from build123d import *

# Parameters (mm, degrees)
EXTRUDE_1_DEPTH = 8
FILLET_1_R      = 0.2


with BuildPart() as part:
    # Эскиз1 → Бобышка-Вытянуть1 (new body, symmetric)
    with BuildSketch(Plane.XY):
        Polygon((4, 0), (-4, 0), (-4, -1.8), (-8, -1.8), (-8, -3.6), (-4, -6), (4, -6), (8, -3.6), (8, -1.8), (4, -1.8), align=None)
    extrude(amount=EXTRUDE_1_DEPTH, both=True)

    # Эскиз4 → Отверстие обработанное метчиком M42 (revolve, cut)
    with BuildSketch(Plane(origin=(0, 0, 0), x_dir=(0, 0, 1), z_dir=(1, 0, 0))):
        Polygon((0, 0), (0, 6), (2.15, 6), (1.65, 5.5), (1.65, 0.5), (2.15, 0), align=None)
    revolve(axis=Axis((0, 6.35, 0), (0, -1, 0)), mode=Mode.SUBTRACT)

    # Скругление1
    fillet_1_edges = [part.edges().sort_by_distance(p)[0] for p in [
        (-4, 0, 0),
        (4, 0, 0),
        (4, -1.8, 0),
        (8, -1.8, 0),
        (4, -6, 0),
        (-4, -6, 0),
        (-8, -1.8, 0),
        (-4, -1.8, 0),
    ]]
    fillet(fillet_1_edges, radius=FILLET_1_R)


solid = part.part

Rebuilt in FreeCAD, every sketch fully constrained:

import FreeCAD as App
import Part
import Sketcher
Q = App.Units.Quantity


def edges_at(feature, points):
    """Names of the edges that pass closest to the given points."""
    edges = feature.Shape.Edges
    near = lambda p: min(range(len(edges)), key=lambda i: edges[i].distToShape(Part.Vertex(*p))[0])
    return sorted({f"Edge{near(p) + 1}" for p in points})


def add_polygon(sketch, points):
    """Adds a closed chain of lines whose ends are joined by coincident constraints."""
    first, n = sketch.GeometryCount, len(points)
    for a, b in zip(points, points[1:] + points[:1]):
        sketch.addGeometry(Part.LineSegment(App.Vector(*a, 0), App.Vector(*b, 0)), False)
    for i in range(n):
        sketch.addConstraint(Sketcher.Constraint("Coincident", first + i, 2, first + (i + 1) % n, 1))

doc = App.newDocument("Part")
body = doc.addObject("PartDesign::Body", "Body")

# Sketch on XY plane
sketch1 = doc.addObject("Sketcher::SketchObject", "Sketch")
body.addObject(sketch1)
sketch1.AttachmentSupport = (doc.XY_Plane, [""])
sketch1.MapMode = "FlatFace"
add_polygon(sketch1, [(4, 0), (-4, 0), (-4, -1.8), (-8, -1.8), (-8, -3.6), (-4, -6), (4, -6), (8, -3.6), (8, -1.8), (4, -1.8)])  # lines 0-9
sketch1.addConstraint(Sketcher.Constraint("Horizontal", 0))
sketch1.addConstraint(Sketcher.Constraint("Vertical", 1))
sketch1.addConstraint(Sketcher.Constraint("Horizontal", 2))
sketch1.addConstraint(Sketcher.Constraint("Vertical", 3))
sketch1.addConstraint(Sketcher.Constraint("Horizontal", 5))
sketch1.addConstraint(Sketcher.Constraint("Vertical", 7))
sketch1.addConstraint(Sketcher.Constraint("Horizontal", 8))
sketch1.addConstraint(Sketcher.Constraint("Vertical", 9))
sketch1.addConstraint(Sketcher.Constraint("Symmetric", 0, 2, 9, 2, -1, 1))
sketch1.addConstraint(Sketcher.Constraint("Symmetric", 3, 2, 6, 2, -2))
sketch1.addConstraint(Sketcher.Constraint("Horizontal", 2, 2, 7, 2))
sketch1.addConstraint(Sketcher.Constraint("Vertical", 1, 2, 4, 2))
sketch1.addConstraint(Sketcher.Constraint("Vertical", 5, 2, 8, 2))
sketch1.addConstraint(Sketcher.Constraint("Equal", 1, 3))
sketch1.addConstraint(Sketcher.Constraint("DistanceX", 0, 2, 0, 1, Q("8 mm")))
sketch1.addConstraint(Sketcher.Constraint("DistanceX", 2, 2, 2, 1, Q("4 mm")))
sketch1.addConstraint(Sketcher.Constraint("DistanceY", 1, 2, 1, 1, Q("1.8 mm")))
sketch1.addConstraint(Sketcher.Constraint("DistanceY", 4, 2, -1, 1, Q("6 mm")))
pad1 = doc.addObject("PartDesign::Pad", "Pad")
body.addObject(pad1)
pad1.Profile = sketch1
pad1.Length = 16
pad1.Midplane = True

# Sketch on YZ plane
sketch2 = doc.addObject("Sketcher::SketchObject", "Sketch001")
body.addObject(sketch2)
sketch2.AttachmentSupport = (doc.YZ_Plane, [""])
sketch2.MapMode = "FlatFace"
add_polygon(sketch2, [(-6, 0), (0, 0), (0, 2.15), (-0.5, 1.65), (-5.5, 1.65), (-6, 2.15)])  # lines 0-5
sketch2.addConstraint(Sketcher.Constraint("Horizontal", 0))
sketch2.addConstraint(Sketcher.Constraint("Vertical", 1))
sketch2.addConstraint(Sketcher.Constraint("Horizontal", 3))
sketch2.addConstraint(Sketcher.Constraint("Vertical", 5))
sketch2.addConstraint(Sketcher.Constraint("Coincident", 0, 2, -1, 1))
sketch2.addConstraint(Sketcher.Constraint("Perpendicular", 2, 4))
sketch2.addConstraint(Sketcher.Constraint("Horizontal", 1, 2, 4, 2))
sketch2.addConstraint(Sketcher.Constraint("Equal", 2, 4))
sketch2.addConstraint(Sketcher.Constraint("DistanceX", 0, 1, 0, 2, Q("6 mm")))
sketch2.addConstraint(Sketcher.Constraint("DistanceX", 3, 2, 3, 1, Q("5 mm")))
sketch2.addConstraint(Sketcher.Constraint("DistanceY", 1, 1, 1, 2, Q("2.15 mm")))
groove = doc.addObject("PartDesign::Groove", "Groove")
body.addObject(groove)
groove.Profile = sketch2
groove.ReferenceAxis = (sketch2, ["H_Axis"])
groove.Angle = 360
doc.recompute()

fillet = doc.addObject("PartDesign::Fillet", "Fillet")
body.addObject(fillet)
fillet.Base = (groove, edges_at(groove, [
    (-4, 0, 0),
    (4, 0, 0),
    (4, -1.8, 0),
    (8, -1.8, 0),
    (4, -6, 0),
    (-4, -6, 0),
    (-8, -1.8, 0),
    (-4, -1.8, 0),
]))
fillet.Radius = 0.2

doc.recompute()
